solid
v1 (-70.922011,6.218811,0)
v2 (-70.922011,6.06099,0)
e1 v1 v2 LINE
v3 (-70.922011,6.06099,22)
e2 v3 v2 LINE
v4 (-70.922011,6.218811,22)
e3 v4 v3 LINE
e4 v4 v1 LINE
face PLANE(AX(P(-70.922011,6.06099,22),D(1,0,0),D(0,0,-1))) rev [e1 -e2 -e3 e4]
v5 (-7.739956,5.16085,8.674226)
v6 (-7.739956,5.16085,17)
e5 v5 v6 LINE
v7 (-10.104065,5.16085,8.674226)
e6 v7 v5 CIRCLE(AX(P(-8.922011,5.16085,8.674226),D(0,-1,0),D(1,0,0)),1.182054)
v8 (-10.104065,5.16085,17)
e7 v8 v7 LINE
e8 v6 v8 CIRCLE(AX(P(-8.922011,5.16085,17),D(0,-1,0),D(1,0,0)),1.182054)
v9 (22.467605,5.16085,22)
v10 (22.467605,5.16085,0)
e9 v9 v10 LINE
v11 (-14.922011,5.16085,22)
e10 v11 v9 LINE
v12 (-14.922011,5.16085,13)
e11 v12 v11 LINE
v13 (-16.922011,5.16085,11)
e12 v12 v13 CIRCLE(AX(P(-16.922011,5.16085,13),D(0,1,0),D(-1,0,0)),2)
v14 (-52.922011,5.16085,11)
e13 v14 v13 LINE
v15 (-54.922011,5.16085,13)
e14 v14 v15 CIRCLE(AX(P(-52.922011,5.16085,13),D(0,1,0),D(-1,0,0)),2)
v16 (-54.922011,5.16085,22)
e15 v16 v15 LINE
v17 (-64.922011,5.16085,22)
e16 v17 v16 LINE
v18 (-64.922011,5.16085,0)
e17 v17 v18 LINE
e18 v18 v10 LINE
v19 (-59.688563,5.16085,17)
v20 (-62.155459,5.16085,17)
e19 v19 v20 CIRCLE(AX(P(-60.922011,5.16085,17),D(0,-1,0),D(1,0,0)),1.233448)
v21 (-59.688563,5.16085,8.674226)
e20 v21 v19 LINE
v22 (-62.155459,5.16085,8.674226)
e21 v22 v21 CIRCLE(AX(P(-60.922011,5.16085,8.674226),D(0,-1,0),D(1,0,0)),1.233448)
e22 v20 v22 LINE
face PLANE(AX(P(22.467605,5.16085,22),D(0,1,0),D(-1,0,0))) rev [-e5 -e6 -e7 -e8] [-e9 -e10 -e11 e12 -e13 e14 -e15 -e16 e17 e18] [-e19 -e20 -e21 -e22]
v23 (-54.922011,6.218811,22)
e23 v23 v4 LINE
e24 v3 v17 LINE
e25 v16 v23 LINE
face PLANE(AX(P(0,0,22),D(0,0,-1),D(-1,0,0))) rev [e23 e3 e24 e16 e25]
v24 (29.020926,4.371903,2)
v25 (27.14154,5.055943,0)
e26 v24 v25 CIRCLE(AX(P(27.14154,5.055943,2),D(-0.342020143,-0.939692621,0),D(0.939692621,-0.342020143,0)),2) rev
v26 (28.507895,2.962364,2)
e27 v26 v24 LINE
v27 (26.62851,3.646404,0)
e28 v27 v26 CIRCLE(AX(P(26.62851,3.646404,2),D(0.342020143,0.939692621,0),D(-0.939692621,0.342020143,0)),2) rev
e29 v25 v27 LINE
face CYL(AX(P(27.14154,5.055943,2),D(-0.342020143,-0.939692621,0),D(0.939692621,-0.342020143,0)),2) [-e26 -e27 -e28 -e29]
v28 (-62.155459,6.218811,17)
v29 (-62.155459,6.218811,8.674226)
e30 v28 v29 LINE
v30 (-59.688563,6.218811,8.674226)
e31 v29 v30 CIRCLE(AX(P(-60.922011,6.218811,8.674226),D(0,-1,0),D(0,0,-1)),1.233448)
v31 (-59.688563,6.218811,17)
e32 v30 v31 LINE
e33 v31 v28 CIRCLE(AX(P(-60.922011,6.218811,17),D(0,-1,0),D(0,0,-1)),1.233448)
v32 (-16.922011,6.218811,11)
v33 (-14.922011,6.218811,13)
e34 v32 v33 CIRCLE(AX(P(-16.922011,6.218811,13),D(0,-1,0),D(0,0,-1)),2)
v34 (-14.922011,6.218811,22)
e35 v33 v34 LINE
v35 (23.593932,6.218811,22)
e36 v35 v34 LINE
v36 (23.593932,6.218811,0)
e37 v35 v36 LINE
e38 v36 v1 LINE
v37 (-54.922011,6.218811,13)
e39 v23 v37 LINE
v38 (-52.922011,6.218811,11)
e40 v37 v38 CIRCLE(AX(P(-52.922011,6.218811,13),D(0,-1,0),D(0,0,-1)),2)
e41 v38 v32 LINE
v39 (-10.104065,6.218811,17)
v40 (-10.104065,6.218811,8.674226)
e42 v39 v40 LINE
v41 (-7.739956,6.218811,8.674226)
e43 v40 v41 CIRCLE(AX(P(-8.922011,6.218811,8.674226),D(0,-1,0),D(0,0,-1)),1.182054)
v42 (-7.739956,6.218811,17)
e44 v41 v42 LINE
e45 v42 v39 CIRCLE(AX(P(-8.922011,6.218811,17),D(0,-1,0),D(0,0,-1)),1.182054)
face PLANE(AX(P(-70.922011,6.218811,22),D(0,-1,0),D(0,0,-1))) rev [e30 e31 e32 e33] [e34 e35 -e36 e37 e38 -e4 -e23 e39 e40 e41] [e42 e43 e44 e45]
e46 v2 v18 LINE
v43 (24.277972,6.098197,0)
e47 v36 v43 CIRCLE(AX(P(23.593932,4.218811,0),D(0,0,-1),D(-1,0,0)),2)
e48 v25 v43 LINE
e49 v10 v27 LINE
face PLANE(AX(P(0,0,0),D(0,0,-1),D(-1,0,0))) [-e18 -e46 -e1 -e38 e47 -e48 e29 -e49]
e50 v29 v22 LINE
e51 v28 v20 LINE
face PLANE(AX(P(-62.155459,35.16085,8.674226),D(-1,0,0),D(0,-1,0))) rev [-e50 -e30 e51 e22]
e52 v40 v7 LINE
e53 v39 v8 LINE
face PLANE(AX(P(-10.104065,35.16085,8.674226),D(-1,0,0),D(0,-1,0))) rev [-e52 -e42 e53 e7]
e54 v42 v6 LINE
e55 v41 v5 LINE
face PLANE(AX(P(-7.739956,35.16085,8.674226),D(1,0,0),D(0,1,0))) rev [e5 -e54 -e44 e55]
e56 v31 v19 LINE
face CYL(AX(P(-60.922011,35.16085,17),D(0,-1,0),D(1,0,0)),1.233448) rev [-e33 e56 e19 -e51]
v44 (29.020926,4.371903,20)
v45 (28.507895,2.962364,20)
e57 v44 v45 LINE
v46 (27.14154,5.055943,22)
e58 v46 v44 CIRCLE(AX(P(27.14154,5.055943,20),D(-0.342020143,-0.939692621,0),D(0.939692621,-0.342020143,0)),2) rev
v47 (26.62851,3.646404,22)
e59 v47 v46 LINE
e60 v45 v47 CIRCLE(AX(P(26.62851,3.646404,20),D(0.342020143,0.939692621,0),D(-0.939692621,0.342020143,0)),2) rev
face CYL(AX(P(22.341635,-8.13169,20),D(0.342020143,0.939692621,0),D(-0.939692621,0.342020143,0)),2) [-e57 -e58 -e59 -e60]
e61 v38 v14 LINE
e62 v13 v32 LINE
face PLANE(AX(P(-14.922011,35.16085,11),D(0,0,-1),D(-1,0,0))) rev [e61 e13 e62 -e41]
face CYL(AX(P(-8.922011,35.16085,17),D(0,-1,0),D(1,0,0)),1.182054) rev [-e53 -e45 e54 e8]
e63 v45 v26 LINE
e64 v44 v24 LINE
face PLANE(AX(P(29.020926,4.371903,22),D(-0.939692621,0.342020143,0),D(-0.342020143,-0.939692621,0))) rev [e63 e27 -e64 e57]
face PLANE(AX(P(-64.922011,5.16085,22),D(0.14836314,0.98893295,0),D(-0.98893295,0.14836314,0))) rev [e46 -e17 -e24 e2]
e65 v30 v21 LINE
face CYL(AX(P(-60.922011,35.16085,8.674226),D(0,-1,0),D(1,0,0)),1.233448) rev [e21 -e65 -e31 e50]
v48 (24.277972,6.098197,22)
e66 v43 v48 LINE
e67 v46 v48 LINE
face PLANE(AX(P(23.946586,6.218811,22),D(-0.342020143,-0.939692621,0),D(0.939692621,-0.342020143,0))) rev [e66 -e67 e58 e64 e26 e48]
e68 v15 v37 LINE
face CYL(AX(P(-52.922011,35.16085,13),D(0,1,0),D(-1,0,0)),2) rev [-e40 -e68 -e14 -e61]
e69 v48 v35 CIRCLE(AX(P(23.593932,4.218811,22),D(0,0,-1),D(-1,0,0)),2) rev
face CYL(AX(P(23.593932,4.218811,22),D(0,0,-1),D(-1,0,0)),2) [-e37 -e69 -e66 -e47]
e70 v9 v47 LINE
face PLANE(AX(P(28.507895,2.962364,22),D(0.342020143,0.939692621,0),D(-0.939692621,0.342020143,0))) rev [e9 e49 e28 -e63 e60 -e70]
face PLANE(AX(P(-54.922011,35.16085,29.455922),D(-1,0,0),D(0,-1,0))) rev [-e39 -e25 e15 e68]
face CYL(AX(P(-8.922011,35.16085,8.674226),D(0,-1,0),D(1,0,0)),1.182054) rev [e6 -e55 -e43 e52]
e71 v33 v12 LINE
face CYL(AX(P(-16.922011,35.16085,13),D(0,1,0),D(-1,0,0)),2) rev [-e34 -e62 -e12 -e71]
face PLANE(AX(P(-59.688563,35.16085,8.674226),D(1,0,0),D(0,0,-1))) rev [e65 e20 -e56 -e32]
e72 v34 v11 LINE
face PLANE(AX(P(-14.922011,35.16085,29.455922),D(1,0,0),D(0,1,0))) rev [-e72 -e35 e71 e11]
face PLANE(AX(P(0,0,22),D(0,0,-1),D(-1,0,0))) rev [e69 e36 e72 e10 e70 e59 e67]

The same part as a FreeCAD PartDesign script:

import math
import FreeCAD as App
import Part
import Sketcher

V = App.Vector
Q = App.Units.Quantity


def edges_at(feature, points):
    """Names of the edges that pass closest to the given points."""
    edges = feature.Shape.Edges
    near = lambda p: min(range(len(edges)), key=lambda i: edges[i].distToShape(Part.Vertex(*p))[0])
    return sorted({f"Edge{near(p) + 1}" for p in points})


def add_polygon(sketch, points):
    """Adds a closed chain of lines whose ends are joined by coincident constraints."""
    first, n = sketch.GeometryCount, len(points)
    for a, b in zip(points, points[1:] + points[:1]):
        sketch.addGeometry(Part.LineSegment(App.Vector(*a, 0), App.Vector(*b, 0)), False)
    for i in range(n):
        sketch.addConstraint(Sketcher.Constraint("Coincident", first + i, 2, first + (i + 1) % n, 1))

doc = App.newDocument("Part")
body = doc.addObject("PartDesign::Body", "Body")

sketch1 = doc.addObject("Sketcher::SketchObject", "Sketch")
body.addObject(sketch1)
sketch1.AttachmentSupport = (doc.XY_Plane, [""])
sketch1.MapMode = "FlatFace"
add_polygon(sketch1, [(23.946586, 6.218811), (-70.922011, 6.218811), (-70.922011, 6.06099), (-64.922011, 5.16085), (22.467605, 5.16085), (28.507895, 2.962364), (29.020926, 4.371903)])
sketch1.addConstraint([
    Sketcher.Constraint("Horizontal", 0),
    Sketcher.Constraint("Vertical", 1),
    Sketcher.Constraint("Horizontal", 3),
    Sketcher.Constraint("Perpendicular", 4, 5),
    Sketcher.Constraint("Perpendicular", 5, 6),
    Sketcher.Constraint("Angle", 4, Q("-20 deg")),
    Sketcher.Constraint("DistanceX", 1, 2, 2, 2, Q("6 mm")),
    Sketcher.Constraint("Distance", 5, Q("1.5 mm")),
    Sketcher.Constraint("Distance", 6, Q("5.4 mm")),
    Sketcher.Constraint("DistanceY", 1, 2, 1, 1, Q("0.157821 mm")),
    Sketcher.Constraint("DistanceX", 0, 2, 0, 1, Q("94.868596 mm")),
    Sketcher.Constraint("DistanceX", 3, 1, 3, 2, Q("87.389616 mm")),
    Sketcher.Constraint("DistanceX", 0, 2, -1, 1, Q("70.922011 mm")),
    Sketcher.Constraint("DistanceY", -1, 1, 0, 2, Q("6.218811 mm")),
])
pad1 = doc.addObject("PartDesign::Pad", "Pad")
body.addObject(pad1)
pad1.Profile = sketch1
pad1.Length = 22
doc.recompute()

fillet = doc.addObject("PartDesign::Fillet", "Fillet")
body.addObject(fillet)
fillet.Base = (pad1, edges_at(pad1, [(28.764, 3.667, 22), (28.764, 3.667, 0)]))
fillet.Radius = 2
doc.recompute()

fillet2 = doc.addObject("PartDesign::Fillet", "Fillet001")
body.addObject(fillet2)
fillet2.Base = (fillet, edges_at(fillet, [(23.947, 6.219, 11)]))
fillet2.Radius = 2

sketch2 = doc.addObject("Sketcher::SketchObject", "Sketch001")
body.addObject(sketch2)
sketch2.AttachmentSupport = (doc.XZ_Plane, [""])
sketch2.MapMode = "FlatFace"
sketch2.AttachmentOffset = App.Placement(V(0, 0, -5.16085), App.Rotation())
add_polygon(sketch2, [(-54.922011, 29.455922), (-54.922011, 11), (-14.922011, 11), (-14.922011, 29.455922)])
sketch2.addGeometry(Part.LineSegment(V(-59.688563, 8.674226, 0), V(-59.688563, 17, 0)), False)
sketch2.addGeometry(Part.ArcOfCircle(Part.Circle(V(-60.922011, 17, 0), V(0, 0, 1), 1.233448), math.radians(0), math.radians(180)), False)
sketch2.addGeometry(Part.LineSegment(V(-62.155459, 17, 0), V(-62.155459, 8.674226, 0)), False)
sketch2.addGeometry(Part.ArcOfCircle(Part.Circle(V(-60.922011, 8.674226, 0), V(0, 0, 1), 1.233448), math.radians(-180), math.radians(0)), False)
sketch2.addGeometry(Part.LineSegment(V(-7.739956, 8.674226, 0), V(-7.739956, 17, 0)), False)
sketch2.addGeometry(Part.ArcOfCircle(Part.Circle(V(-8.922011, 17, 0), V(0, 0, 1), 1.182054), math.radians(0), math.radians(180)), False)
sketch2.addGeometry(Part.LineSegment(V(-10.104065, 17, 0), V(-10.104065, 8.674226, 0)), False)
sketch2.addGeometry(Part.ArcOfCircle(Part.Circle(V(-8.922011, 8.674226, 0), V(0, 0, 1), 1.182054), math.radians(-180), math.radians(0)), False)
sketch2.addConstraint([
    Sketcher.Constraint("Tangent", 4, 2, 5, 1),
    Sketcher.Constraint("Tangent", 5, 2, 6, 1),
    Sketcher.Constraint("Tangent", 6, 2, 7, 1),
    Sketcher.Constraint("Tangent", 7, 2, 4, 1),
    Sketcher.Constraint("Tangent", 8, 2, 9, 1),
    Sketcher.Constraint("Tangent", 9, 2, 10, 1),
    Sketcher.Constraint("Tangent", 10, 2, 11, 1),
    Sketcher.Constraint("Tangent", 11, 2, 8, 1),
    Sketcher.Constraint("Vertical", 0),
    Sketcher.Constraint("Horizontal", 1),
    Sketcher.Constraint("Vertical", 2),
    Sketcher.Constraint("Horizontal", 3),
    Sketcher.Constraint("Vertical", 4),
    Sketcher.Constraint("Vertical", 6),
    Sketcher.Constraint("Vertical", 8),
    Sketcher.Constraint("Vertical", 10),
    Sketcher.Constraint("Horizontal", 5, 3, 9, 3),
    Sketcher.Constraint("Horizontal", 7, 3, 11, 3),
    Sketcher.Constraint("DistanceX", 1, 1, 1, 2, Q("40 mm")),
    Sketcher.Constraint("DistanceY", -1, 1, 5, 3, Q("17 mm")),
    Sketcher.Constraint("DistanceY", -1, 1, 0, 2, Q("11 mm")),
    Sketcher.Constraint("DistanceX", 5, 3, 9, 3, Q("52 mm")),
    Sketcher.Constraint("DistanceX", 7, 3, 0, 2, Q("6 mm")),
    Sketcher.Constraint("Radius", 5, Q("1.233448 mm")),
    Sketcher.Constraint("Radius", 9, Q("1.182054 mm")),
    Sketcher.Constraint("DistanceY", 0, 2, 0, 1, Q("18.455922 mm")),
    Sketcher.Constraint("DistanceY", 4, 1, 4, 2, Q("8.325774 mm")),
    Sketcher.Constraint("DistanceX", 5, 3, -1, 1, Q("60.922011 mm")),
])
pocket1 = doc.addObject("PartDesign::Pocket", "Pocket")
body.addObject(pocket1)
pocket1.Profile = sketch2
pocket1.Length = 30
doc.recompute()

fillet3 = doc.addObject("PartDesign::Fillet", "Fillet002")
body.addObject(fillet3)
fillet3.Base = (pocket1, edges_at(pocket1, [(-14.922, 5.69, 11), (-54.922, 5.69, 11)]))
fillet3.Radius = 2

doc.recompute()
